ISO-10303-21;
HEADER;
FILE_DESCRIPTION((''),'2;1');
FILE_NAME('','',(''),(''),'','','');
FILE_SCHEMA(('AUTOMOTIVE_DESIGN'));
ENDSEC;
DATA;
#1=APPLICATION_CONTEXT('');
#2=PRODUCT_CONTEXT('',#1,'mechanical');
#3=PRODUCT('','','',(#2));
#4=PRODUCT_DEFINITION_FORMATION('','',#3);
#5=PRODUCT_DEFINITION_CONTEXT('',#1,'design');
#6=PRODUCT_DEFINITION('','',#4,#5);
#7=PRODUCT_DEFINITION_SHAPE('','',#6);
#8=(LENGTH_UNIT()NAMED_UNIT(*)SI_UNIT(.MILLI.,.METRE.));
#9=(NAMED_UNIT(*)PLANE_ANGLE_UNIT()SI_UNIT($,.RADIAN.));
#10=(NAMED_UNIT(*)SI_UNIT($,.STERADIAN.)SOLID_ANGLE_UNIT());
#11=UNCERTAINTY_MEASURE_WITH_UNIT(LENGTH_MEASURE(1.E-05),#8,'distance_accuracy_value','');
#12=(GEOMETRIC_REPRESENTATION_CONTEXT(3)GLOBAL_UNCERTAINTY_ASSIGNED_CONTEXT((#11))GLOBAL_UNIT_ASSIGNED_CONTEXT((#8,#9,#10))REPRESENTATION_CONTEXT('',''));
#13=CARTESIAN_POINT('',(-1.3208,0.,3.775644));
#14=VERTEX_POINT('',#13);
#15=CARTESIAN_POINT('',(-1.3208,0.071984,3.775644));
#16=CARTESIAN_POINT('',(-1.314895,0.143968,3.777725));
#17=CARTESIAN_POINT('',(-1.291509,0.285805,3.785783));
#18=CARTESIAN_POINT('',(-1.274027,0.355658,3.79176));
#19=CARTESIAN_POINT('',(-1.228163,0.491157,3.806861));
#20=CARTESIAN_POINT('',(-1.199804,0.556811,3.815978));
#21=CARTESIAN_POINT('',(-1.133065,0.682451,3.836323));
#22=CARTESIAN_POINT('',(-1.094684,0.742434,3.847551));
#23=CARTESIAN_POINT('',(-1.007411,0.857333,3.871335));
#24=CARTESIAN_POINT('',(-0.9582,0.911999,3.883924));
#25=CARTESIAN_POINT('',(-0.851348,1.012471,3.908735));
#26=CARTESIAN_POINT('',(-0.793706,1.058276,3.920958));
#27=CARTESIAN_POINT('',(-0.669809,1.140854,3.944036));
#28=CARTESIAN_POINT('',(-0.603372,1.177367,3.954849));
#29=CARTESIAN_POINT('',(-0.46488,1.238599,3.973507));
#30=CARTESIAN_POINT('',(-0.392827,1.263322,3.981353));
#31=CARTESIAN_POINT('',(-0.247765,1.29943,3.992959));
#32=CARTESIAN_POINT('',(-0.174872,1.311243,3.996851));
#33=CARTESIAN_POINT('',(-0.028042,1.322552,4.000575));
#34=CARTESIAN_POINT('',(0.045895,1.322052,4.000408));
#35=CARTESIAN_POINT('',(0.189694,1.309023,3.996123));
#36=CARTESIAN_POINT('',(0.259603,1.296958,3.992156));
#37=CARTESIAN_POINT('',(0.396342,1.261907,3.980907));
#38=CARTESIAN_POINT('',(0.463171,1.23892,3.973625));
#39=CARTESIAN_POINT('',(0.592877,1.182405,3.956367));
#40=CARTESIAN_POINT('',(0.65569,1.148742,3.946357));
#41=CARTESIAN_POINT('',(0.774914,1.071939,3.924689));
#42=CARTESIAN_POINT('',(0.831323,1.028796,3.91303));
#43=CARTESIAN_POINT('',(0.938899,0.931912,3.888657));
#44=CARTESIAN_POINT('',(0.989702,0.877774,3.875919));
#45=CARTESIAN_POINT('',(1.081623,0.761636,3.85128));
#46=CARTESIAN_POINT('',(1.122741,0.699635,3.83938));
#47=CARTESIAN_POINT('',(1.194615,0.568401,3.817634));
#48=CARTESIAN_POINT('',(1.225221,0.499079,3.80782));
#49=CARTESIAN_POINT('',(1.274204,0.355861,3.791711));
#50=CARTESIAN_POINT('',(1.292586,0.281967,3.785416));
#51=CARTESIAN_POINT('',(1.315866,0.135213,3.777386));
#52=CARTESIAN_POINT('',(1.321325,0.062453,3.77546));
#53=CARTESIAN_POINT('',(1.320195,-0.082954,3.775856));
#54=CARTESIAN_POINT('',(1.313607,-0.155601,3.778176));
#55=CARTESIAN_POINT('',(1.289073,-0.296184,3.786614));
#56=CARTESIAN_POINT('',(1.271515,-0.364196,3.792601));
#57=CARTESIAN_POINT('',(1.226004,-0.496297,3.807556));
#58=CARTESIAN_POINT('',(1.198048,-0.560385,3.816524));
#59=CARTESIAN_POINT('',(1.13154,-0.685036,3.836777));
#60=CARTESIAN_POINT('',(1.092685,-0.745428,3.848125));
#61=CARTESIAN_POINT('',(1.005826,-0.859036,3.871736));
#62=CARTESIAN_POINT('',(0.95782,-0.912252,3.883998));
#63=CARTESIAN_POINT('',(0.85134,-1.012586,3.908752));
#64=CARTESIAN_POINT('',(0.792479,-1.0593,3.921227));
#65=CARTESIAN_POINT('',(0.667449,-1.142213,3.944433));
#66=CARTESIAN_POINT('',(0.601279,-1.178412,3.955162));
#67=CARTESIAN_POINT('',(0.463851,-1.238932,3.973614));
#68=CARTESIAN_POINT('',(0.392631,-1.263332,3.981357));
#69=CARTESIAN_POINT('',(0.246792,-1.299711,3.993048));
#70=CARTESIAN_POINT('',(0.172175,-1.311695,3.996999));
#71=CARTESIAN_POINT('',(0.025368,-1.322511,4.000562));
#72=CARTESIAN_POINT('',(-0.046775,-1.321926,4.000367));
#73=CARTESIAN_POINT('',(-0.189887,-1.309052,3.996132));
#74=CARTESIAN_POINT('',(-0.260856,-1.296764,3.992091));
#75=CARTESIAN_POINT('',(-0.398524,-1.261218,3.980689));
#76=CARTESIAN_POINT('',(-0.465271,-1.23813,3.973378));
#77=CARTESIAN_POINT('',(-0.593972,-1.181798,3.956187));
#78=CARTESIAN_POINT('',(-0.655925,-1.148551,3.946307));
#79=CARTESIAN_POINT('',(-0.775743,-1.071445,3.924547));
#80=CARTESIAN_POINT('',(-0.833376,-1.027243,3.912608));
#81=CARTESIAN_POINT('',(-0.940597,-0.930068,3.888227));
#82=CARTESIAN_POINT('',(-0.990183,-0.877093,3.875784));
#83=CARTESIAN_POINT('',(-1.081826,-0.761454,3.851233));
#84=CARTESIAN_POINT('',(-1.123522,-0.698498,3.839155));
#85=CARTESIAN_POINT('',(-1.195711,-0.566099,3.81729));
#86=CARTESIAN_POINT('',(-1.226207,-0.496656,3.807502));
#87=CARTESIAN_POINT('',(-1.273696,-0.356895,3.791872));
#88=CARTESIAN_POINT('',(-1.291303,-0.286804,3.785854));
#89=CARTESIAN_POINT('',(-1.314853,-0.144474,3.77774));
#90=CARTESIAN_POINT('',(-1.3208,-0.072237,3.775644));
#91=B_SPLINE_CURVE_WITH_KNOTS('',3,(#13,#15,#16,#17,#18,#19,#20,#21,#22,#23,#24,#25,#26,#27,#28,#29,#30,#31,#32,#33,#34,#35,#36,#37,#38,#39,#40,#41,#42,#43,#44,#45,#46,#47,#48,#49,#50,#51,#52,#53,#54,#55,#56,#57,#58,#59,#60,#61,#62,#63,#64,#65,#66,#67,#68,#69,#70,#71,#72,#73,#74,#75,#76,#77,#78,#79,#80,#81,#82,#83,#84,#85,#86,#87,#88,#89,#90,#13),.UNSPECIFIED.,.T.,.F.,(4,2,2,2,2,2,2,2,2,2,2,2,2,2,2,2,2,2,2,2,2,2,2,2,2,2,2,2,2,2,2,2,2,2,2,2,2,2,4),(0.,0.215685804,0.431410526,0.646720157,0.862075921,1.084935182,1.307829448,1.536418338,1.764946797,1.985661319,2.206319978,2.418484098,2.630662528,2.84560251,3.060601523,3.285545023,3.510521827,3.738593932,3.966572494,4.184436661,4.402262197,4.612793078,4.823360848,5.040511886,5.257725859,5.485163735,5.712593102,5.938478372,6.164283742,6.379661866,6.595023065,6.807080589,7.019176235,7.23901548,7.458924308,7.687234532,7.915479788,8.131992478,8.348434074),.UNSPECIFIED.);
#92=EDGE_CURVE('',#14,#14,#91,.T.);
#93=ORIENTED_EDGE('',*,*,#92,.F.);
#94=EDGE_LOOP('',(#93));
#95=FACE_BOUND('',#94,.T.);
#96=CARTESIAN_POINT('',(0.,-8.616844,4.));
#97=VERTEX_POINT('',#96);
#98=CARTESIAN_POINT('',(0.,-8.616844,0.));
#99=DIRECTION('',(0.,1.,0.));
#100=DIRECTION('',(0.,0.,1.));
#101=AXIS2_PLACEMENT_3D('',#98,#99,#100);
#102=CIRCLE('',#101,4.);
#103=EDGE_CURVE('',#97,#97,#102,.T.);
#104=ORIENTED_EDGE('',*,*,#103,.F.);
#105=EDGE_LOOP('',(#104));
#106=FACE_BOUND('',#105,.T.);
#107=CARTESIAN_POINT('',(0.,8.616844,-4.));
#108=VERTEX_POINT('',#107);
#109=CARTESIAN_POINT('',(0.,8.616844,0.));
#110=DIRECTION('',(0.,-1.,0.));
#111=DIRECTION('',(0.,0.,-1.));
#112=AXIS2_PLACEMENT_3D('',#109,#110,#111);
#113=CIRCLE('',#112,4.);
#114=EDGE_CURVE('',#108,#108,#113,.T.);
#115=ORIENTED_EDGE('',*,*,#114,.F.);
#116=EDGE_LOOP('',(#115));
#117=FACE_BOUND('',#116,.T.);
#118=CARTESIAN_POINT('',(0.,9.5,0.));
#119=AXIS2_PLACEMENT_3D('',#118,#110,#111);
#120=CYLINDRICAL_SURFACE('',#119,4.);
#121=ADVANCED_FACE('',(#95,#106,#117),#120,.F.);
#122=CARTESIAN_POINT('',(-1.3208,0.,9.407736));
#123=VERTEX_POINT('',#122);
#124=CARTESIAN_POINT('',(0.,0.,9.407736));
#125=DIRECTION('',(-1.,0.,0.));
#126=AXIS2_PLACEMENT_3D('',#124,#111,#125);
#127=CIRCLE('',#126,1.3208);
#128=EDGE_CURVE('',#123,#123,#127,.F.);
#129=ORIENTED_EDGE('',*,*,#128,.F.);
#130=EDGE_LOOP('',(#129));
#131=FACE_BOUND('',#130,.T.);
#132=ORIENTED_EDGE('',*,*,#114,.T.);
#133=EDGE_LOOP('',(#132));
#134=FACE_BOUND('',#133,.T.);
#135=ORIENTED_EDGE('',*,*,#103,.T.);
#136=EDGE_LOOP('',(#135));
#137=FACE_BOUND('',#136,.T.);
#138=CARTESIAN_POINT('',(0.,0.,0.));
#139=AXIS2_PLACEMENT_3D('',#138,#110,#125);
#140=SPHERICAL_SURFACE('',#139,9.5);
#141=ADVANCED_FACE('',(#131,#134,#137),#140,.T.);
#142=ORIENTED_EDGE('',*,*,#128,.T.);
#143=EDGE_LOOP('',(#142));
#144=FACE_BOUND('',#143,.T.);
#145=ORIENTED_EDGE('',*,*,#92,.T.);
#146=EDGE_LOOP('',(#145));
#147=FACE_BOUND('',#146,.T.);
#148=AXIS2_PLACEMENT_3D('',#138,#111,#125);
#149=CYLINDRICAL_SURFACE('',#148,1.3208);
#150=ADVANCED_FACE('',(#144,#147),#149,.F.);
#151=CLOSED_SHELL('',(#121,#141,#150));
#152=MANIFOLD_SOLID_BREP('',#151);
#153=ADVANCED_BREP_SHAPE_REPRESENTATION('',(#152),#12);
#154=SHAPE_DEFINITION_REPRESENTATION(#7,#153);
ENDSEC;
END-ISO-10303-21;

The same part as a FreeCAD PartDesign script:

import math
import FreeCAD as App
import Part
import Sketcher

V = App.Vector

doc = App.newDocument("Part")
body = doc.addObject("PartDesign::Body", "Body")

# Sketch on XY plane
sketch1 = body.newObject("Sketcher::SketchObject", "Sketch")
sketch1.AttachmentSupport = (doc.getObject("XY_Plane"), [""])
sketch1.MapMode = "FlatFace"
sketch1.addGeometry([
    Part.LineSegment(V(0, 10, 0), V(0, -10, 0)),
    Part.ArcOfCircle(Part.Circle(V(0, 0, 0), V(0, 0, 1), 10), math.radians(-90), math.radians(90)),
], False)
sketch1.addConstraint([
    Sketcher.Constraint("Coincident", 0, 1, 1, 2),
    Sketcher.Constraint("Coincident", 1, 1, 0, 2),
    Sketcher.Constraint("Vertical", 0),
    Sketcher.Constraint("Coincident", 1, 3, -1, 1),
    Sketcher.Constraint("PointOnObject", 0, 1, -2),
    Sketcher.Constraint("Radius", 1, 9.5),
])
revolution = body.newObject("PartDesign::Revolution", "Revolution")
revolution.Profile = sketch1
revolution.ReferenceAxis = (sketch1, ["V_Axis"])
revolution.Angle = 360

# Sketch on XZ plane
sketch2 = body.newObject("Sketcher::SketchObject", "Sketch001")
sketch2.AttachmentSupport = (doc.getObject("XZ_Plane"), [""])
sketch2.MapMode = "FlatFace"
sketch2.addGeometry(Part.Circle(V(0, 0, 0), V(0, 0, 1), 4), False)
sketch2.addConstraint([
    Sketcher.Constraint("Coincident", 0, 3, -1, 1),
    Sketcher.Constraint("Diameter", 0, 8.0),
])
pocket1 = body.newObject("PartDesign::Pocket", "Pocket")
pocket1.Profile = sketch2
pocket1.Type = "ThroughAll"
pocket1.Midplane = True

# Sketch on YZ plane
sketch3 = body.newObject("Sketcher::SketchObject", "Sketch002")
sketch3.AttachmentSupport = (doc.getObject("YZ_Plane"), [""])
sketch3.MapMode = "FlatFace"
sketch3.addGeometry([
    Part.LineSegment(V(0, 9.5, 0), V(0, 0, 0)),
    Part.LineSegment(V(0, 0, 0), V(1.3, 0, 0)),
    Part.LineSegment(V(1.3, 0, 0), V(1.3, 9.5, 0)),
    Part.LineSegment(V(1.3, 9.5, 0), V(0, 9.5, 0)),
], False)
sketch3.addConstraint([
    Sketcher.Constraint("Coincident", 0, 2, 1, 1),
    Sketcher.Constraint("Coincident", 1, 2, 2, 1),
    Sketcher.Constraint("Coincident", 2, 2, 3, 1),
    Sketcher.Constraint("Coincident", 3, 2, 0, 1),
    Sketcher.Constraint("Vertical", 0),
    Sketcher.Constraint("Horizontal", 1),
    Sketcher.Constraint("Vertical", 2),
    Sketcher.Constraint("Horizontal", 3),
    Sketcher.Constraint("Coincident", 0, 2, -1, 1),
    Sketcher.Constraint("DistanceY", 0, 2, 0, 1, 9.5),
    Sketcher.Constraint("DistanceX", 1, 1, 1, 2, 1.3208),
])
groove = body.newObject("PartDesign::Groove", "Groove")
groove.Profile = sketch3
groove.ReferenceAxis = (sketch3, ["V_Axis"])
groove.Angle = 360

doc.recompute()
